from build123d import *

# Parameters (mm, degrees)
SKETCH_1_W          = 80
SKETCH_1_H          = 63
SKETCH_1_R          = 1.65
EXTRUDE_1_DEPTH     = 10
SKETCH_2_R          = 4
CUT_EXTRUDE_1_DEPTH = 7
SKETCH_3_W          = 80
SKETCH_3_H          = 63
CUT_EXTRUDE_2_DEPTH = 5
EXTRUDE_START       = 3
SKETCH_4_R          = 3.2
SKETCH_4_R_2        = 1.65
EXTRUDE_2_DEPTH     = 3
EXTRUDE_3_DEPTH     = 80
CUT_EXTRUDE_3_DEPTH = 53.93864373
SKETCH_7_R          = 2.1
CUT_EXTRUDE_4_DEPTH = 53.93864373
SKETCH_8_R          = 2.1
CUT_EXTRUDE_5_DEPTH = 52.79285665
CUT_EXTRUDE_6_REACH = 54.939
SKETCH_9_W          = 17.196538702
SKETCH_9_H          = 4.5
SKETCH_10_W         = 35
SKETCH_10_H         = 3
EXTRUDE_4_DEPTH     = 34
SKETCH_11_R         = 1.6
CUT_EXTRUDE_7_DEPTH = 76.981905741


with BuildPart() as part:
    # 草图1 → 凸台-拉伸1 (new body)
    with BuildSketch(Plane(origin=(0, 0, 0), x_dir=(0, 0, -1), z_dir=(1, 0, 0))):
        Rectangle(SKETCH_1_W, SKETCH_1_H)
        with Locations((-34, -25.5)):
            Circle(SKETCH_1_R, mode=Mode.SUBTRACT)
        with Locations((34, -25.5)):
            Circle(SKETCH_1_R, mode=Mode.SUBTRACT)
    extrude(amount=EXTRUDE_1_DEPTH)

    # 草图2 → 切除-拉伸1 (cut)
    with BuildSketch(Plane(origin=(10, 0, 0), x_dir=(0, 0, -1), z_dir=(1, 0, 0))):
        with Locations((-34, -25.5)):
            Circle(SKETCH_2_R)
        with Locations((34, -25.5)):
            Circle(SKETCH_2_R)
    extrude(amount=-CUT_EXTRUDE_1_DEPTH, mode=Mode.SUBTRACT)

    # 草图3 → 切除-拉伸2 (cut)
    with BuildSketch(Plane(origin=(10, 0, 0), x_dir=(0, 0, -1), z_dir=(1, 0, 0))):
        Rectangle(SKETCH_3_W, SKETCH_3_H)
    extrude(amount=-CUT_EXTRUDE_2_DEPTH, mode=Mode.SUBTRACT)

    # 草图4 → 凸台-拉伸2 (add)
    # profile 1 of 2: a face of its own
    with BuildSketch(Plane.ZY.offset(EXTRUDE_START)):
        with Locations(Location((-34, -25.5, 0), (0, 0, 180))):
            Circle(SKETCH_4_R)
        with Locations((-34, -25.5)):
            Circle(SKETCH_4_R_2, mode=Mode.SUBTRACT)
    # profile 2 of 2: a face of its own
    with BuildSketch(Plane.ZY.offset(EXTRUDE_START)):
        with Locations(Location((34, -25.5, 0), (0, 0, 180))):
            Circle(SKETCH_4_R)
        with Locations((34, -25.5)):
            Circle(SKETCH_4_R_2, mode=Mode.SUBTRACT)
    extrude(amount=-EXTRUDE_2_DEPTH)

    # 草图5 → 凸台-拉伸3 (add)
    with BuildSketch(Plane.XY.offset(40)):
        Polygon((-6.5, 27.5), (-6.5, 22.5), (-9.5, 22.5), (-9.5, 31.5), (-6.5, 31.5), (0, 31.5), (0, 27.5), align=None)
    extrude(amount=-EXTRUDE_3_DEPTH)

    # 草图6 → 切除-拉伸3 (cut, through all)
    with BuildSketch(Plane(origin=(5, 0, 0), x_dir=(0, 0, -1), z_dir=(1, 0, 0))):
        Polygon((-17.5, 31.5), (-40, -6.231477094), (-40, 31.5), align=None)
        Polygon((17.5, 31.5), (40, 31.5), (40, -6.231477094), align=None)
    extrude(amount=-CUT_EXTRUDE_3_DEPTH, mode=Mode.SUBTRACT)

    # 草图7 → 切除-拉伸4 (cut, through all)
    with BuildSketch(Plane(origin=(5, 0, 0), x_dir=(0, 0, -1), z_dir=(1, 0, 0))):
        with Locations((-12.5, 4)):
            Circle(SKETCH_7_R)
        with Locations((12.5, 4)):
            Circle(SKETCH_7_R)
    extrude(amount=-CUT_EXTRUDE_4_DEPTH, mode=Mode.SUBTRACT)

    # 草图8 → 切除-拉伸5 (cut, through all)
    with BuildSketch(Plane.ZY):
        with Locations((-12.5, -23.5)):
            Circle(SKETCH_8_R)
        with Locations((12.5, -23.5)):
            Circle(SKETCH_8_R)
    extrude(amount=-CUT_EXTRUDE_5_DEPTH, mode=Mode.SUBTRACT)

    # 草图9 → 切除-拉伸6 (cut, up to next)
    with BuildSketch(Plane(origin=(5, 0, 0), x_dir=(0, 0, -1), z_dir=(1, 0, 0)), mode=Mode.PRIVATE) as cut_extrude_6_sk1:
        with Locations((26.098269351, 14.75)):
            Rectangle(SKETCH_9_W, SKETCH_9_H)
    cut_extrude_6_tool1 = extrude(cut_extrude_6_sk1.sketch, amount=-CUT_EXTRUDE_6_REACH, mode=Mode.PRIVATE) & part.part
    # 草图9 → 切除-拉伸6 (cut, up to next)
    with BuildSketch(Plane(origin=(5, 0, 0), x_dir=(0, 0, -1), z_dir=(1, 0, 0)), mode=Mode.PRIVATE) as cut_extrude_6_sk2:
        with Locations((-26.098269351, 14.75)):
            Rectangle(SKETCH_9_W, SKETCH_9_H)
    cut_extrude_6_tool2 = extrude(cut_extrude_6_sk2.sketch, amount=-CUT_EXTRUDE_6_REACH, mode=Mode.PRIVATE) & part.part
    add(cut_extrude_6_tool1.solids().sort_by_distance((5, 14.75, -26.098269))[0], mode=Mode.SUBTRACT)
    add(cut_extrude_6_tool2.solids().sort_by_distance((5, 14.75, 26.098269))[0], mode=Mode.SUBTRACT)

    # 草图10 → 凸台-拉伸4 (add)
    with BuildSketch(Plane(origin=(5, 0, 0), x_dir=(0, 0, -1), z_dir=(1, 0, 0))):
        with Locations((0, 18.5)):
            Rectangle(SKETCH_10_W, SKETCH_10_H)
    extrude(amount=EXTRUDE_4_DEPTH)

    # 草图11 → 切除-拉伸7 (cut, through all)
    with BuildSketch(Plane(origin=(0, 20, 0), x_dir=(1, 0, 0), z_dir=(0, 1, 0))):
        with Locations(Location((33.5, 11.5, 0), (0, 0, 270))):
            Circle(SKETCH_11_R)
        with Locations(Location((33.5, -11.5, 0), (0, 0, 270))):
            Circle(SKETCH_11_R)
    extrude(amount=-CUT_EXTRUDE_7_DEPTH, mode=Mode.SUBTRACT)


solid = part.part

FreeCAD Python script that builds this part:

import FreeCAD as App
import Part
import Sketcher

doc = App.newDocument("Part")
params = doc.addObject("Spreadsheet::Sheet", "Params")
for row, (alias, value) in enumerate([
    ("sketch1_diameter", "3.3 mm"),
    ("sketch1_width", "63 mm"),
    ("sketch1_height", "80 mm"),
    ("pad1_length", "10 mm"),
    ("sketch2_diameter", "8 mm"),
    ("pocket1_length", "7 mm"),
    ("sketch3_width", "63 mm"),
    ("sketch3_height", "80 mm"),
    ("pocket2_length", "5 mm"),
    ("sketch4_diameter", "6.4 mm"),
    ("sketch4_diameter2", "3.3 mm"),
    ("pad2_length", "3 mm"),
    ("sketch5_width", "3 mm"),
    ("sketch5_height", "5 mm"),
    ("sketch5_height2", "4 mm"),
    ("sketch5_width2", "6.5 mm"),
    ("pad3_length", "80 mm"),
    ("sketch6_height", "22.5 mm"),
    ("sketch7_diameter", "4.2 mm"),
    ("sketch8_diameter", "4.2 mm"),
    ("sketch9_width", "4.5 mm"),
    ("sketch10_width", "4.5 mm"),
    ("sketch11_width", "3 mm"),
    ("sketch11_height", "35 mm"),
    ("pad4_length", "34 mm"),
    ("sketch12_diameter", "3.2 mm"),
], start=1):
    params.set(f"A{row}", alias)
    params.set(f"B{row}", "=" + value)
    params.setAlias(f"B{row}", alias)

body = doc.addObject("PartDesign::Body", "Body")

sketch1 = body.newObject("Sketcher::SketchObject", "Sketch")
sketch1.AttachmentSupport = (doc.getObject("YZ_Plane"), [""])
sketch1.MapMode = "FlatFace"
sketch1.addGeometry(Part.LineSegment(App.Vector(31.5, 40, 0), App.Vector(-31.5, 40, 0)), False)
sketch1.addGeometry(Part.LineSegment(App.Vector(-31.5, 40, 0), App.Vector(-31.5, -40, 0)), False)
sketch1.addGeometry(Part.LineSegment(App.Vector(-31.5, -40, 0), App.Vector(31.5, -40, 0)), False)
sketch1.addGeometry(Part.LineSegment(App.Vector(31.5, -40, 0), App.Vector(31.5, 40, 0)), False)
sketch1.addGeometry(Part.Circle(App.Vector(-25.5, 34, 0), App.Vector(0, 0, 1), 1.6), False)
sketch1.addGeometry(Part.Circle(App.Vector(-25.5, -34, 0), App.Vector(0, 0, 1), 1.6), False)
sketch1.addConstraint(Sketcher.Constraint("Coincident", 0, 2, 1, 1))
sketch1.addConstraint(Sketcher.Constraint("Coincident", 1, 2, 2, 1))
sketch1.addConstraint(Sketcher.Constraint("Coincident", 2, 2, 3, 1))
sketch1.addConstraint(Sketcher.Constraint("Coincident", 3, 2, 0, 1))
sketch1.addConstraint(Sketcher.Constraint("Horizontal", 0))
sketch1.addConstraint(Sketcher.Constraint("Vertical", 1))
sketch1.addConstraint(Sketcher.Constraint("Horizontal", 2))
sketch1.addConstraint(Sketcher.Constraint("Vertical", 3))
sketch1.addConstraint(Sketcher.Constraint("Equal", 4, 5))
sketch1.addConstraint(Sketcher.Constraint("Symmetric", 0, 2, 2, 2, -1, 1))
sketch1.addConstraint(Sketcher.Constraint("Symmetric", 4, 3, 5, 3, -1))
sketch1.addConstraint(Sketcher.Constraint("Diameter", 4, 3.3))
sketch1.addConstraint(Sketcher.Constraint("DistanceX", 0, 2, 0, 1, 63.0))
sketch1.addConstraint(Sketcher.Constraint("DistanceY", 1, 2, 1, 1, 80.0))
sketch1.addConstraint(Sketcher.Constraint("DistanceY", -1, 1, 4, 3, 34.0))
sketch1.addConstraint(Sketcher.Constraint("DistanceX", 0, 2, 4, 3, 6.0))
sketch1.setExpression("Constraints[11]", "Params.sketch1_diameter")
sketch1.setExpression("Constraints[12]", "Params.sketch1_width")
sketch1.setExpression("Constraints[13]", "Params.sketch1_height")
pad1 = body.newObject("PartDesign::Pad", "Pad")
pad1.Profile = sketch1
pad1.setExpression("Length", "Params.pad1_length")

sketch2 = body.newObject("Sketcher::SketchObject", "Sketch001")
sketch2.AttachmentSupport = (doc.getObject("YZ_Plane"), [""])
sketch2.MapMode = "FlatFace"
sketch2.AttachmentOffset = App.Placement(App.Vector(0, 0, 10), App.Rotation())
sketch2.addGeometry(Part.Circle(App.Vector(-25.5, 34, 0), App.Vector(0, 0, 1), 4), False)
sketch2.addGeometry(Part.Circle(App.Vector(-25.5, -34, 0), App.Vector(0, 0, 1), 4), False)
sketch2.addConstraint(Sketcher.Constraint("Equal", 0, 1))
sketch2.addConstraint(Sketcher.Constraint("Symmetric", 0, 3, 1, 3, -1))
sketch2.addConstraint(Sketcher.Constraint("Diameter", 0, 8.0))
sketch2.addConstraint(Sketcher.Constraint("DistanceY", -1, 1, 0, 3, 34.0))
sketch2.addConstraint(Sketcher.Constraint("DistanceX", 0, 3, -1, 1, 25.5))
sketch2.setExpression("Constraints[2]", "Params.sketch2_diameter")
pocket1 = body.newObject("PartDesign::Pocket", "Pocket")
pocket1.Profile = sketch2
pocket1.setExpression("Length", "Params.pocket1_length")

sketch3 = body.newObject("Sketcher::SketchObject", "Sketch002")
sketch3.AttachmentSupport = (doc.getObject("YZ_Plane"), [""])
sketch3.MapMode = "FlatFace"
sketch3.AttachmentOffset = App.Placement(App.Vector(0, 0, 10), App.Rotation())
sketch3.addGeometry(Part.LineSegment(App.Vector(32, 40, 0), App.Vector(-32, 40, 0)), False)
sketch3.addGeometry(Part.LineSegment(App.Vector(-32, 40, 0), App.Vector(-32, -40, 0)), False)
sketch3.addGeometry(Part.LineSegment(App.Vector(-32, -40, 0), App.Vector(32, -40, 0)), False)
sketch3.addGeometry(Part.LineSegment(App.Vector(32, -40, 0), App.Vector(32, 40, 0)), False)
sketch3.addConstraint(Sketcher.Constraint("Coincident", 0, 2, 1, 1))
sketch3.addConstraint(Sketcher.Constraint("Coincident", 1, 2, 2, 1))
sketch3.addConstraint(Sketcher.Constraint("Coincident", 2, 2, 3, 1))
sketch3.addConstraint(Sketcher.Constraint("Coincident", 3, 2, 0, 1))
sketch3.addConstraint(Sketcher.Constraint("Horizontal", 0))
sketch3.addConstraint(Sketcher.Constraint("Vertical", 1))
sketch3.addConstraint(Sketcher.Constraint("Horizontal", 2))
sketch3.addConstraint(Sketcher.Constraint("Vertical", 3))
sketch3.addConstraint(Sketcher.Constraint("Symmetric", 0, 2, 2, 2, -1, 1))
sketch3.addConstraint(Sketcher.Constraint("DistanceX", 0, 2, 0, 1, 63.0))
sketch3.addConstraint(Sketcher.Constraint("DistanceY", 1, 2, 1, 1, 80.0))
sketch3.setExpression("Constraints[9]", "Params.sketch3_width")
sketch3.setExpression("Constraints[10]", "Params.sketch3_height")
pocket2 = body.newObject("PartDesign::Pocket", "Pocket001")
pocket2.Profile = sketch3
pocket2.setExpression("Length", "Params.pocket2_length")

sketch4 = body.newObject("Sketcher::SketchObject", "Sketch003")
sketch4.AttachmentSupport = (doc.getObject("YZ_Plane"), [""])
sketch4.MapMode = "FlatFace"
sketch4.AttachmentOffset = App.Placement(App.Vector(0, 0, -3), App.Rotation())
sketch4.addGeometry(Part.Circle(App.Vector(-25.5, -34, 0), App.Vector(0, 0, 1), 3.2), False)
sketch4.addGeometry(Part.Circle(App.Vector(-25.5, -34, 0), App.Vector(0, 0, 1), 1.6), False)
sketch4.addGeometry(Part.Circle(App.Vector(-25.5, 34, 0), App.Vector(0, 0, 1), 3.2), False)
sketch4.addGeometry(Part.Circle(App.Vector(-25.5, 34, 0), App.Vector(0, 0, 1), 1.6), False)
sketch4.addConstraint(Sketcher.Constraint("Coincident", 1, 3, 0, 3))
sketch4.addConstraint(Sketcher.Constraint("Coincident", 3, 3, 2, 3))
sketch4.addConstraint(Sketcher.Constraint("Equal", 0, 2))
sketch4.addConstraint(Sketcher.Constraint("Equal", 1, 3))
sketch4.addConstraint(Sketcher.Constraint("Symmetric", 0, 3, 2, 3, -1))
sketch4.addConstraint(Sketcher.Constraint("Diameter", 0, 6.4))
sketch4.addConstraint(Sketcher.Constraint("Diameter", 1, 3.3))
sketch4.addConstraint(Sketcher.Constraint("DistanceY", 0, 3, -1, 1, 34.0))
sketch4.addConstraint(Sketcher.Constraint("DistanceX", 0, 3, -1, 1, 25.5))
sketch4.setExpression("Constraints[5]", "Params.sketch4_diameter")
sketch4.setExpression("Constraints[6]", "Params.sketch4_diameter2")
pad2 = body.newObject("PartDesign::Pad", "Pad001")
pad2.Profile = sketch4
pad2.setExpression("Length", "Params.pad2_length")

sketch5 = body.newObject("Sketcher::SketchObject", "Sketch004")
sketch5.AttachmentSupport = (doc.getObject("XY_Plane"), [""])
sketch5.MapMode = "FlatFace"
sketch5.AttachmentOffset = App.Placement(App.Vector(0, 0, 40), App.Rotation())
sketch5.addGeometry(Part.LineSegment(App.Vector(-6.5, 22.5, 0), App.Vector(-6.5, 27.5, 0)), False)
sketch5.addGeometry(Part.LineSegment(App.Vector(-6.5, 27.5, 0), App.Vector(0, 27.5, 0)), False)
sketch5.addGeometry(Part.LineSegment(App.Vector(0, 27.5, 0), App.Vector(0, 31.5, 0)), False)
sketch5.addGeometry(Part.LineSegment(App.Vector(0, 31.5, 0), App.Vector(-9.5, 31.5, 0)), False)
sketch5.addGeometry(Part.LineSegment(App.Vector(-9.5, 31.5, 0), App.Vector(-9.5, 22.5, 0)), False)
sketch5.addGeometry(Part.LineSegment(App.Vector(-9.5, 22.5, 0), App.Vector(-6.5, 22.5, 0)), False)
sketch5.addConstraint(Sketcher.Constraint("Coincident", 0, 2, 1, 1))
sketch5.addConstraint(Sketcher.Constraint("Coincident", 1, 2, 2, 1))
sketch5.addConstraint(Sketcher.Constraint("Coincident", 2, 2, 3, 1))
sketch5.addConstraint(Sketcher.Constraint("Coincident", 3, 2, 4, 1))
sketch5.addConstraint(Sketcher.Constraint("Coincident", 4, 2, 5, 1))
sketch5.addConstraint(Sketcher.Constraint("Coincident", 5, 2, 0, 1))
sketch5.addConstraint(Sketcher.Constraint("Vertical", 0))
sketch5.addConstraint(Sketcher.Constraint("Horizontal", 1))
sketch5.addConstraint(Sketcher.Constraint("Vertical", 2))
sketch5.addConstraint(Sketcher.Constraint("Horizontal", 3))
sketch5.addConstraint(Sketcher.Constraint("Vertical", 4))
sketch5.addConstraint(Sketcher.Constraint("Horizontal", 5))
sketch5.addConstraint(Sketcher.Constraint("PointOnObject", 1, 2, -2))
sketch5.addConstraint(Sketcher.Constraint("DistanceX", 5, 1, 5, 2, 3.0))
sketch5.addConstraint(Sketcher.Constraint("DistanceY", 0, 1, 0, 2, 5.0))
sketch5.addConstraint(Sketcher.Constraint("DistanceY", 2, 1, 2, 2, 4.0))
sketch5.addConstraint(Sketcher.Constraint("DistanceX", 1, 1, 1, 2, 6.5))
sketch5.addConstraint(Sketcher.Constraint("DistanceY", -1, 1, 0, 2, 27.5))
sketch5.setExpression("Constraints[13]", "Params.sketch5_width")
sketch5.setExpression("Constraints[14]", "Params.sketch5_height")
sketch5.setExpression("Constraints[15]", "Params.sketch5_height2")
sketch5.setExpression("Constraints[16]", "Params.sketch5_width2")
pad3 = body.newObject("PartDesign::Pad", "Pad002")
pad3.Profile = sketch5
pad3.setExpression("Length", "Params.pad3_length")
pad3.Reversed = True

sketch6 = body.newObject("Sketcher::SketchObject", "Sketch005")
sketch6.AttachmentSupport = (doc.getObject("YZ_Plane"), [""])
sketch6.MapMode = "FlatFace"
sketch6.AttachmentOffset = App.Placement(App.Vector(0, 0, 5), App.Rotation())
sketch6.addGeometry(Part.LineSegment(App.Vector(-6, 40, 0), App.Vector(32, 18, 0)), False)
sketch6.addGeometry(Part.LineSegment(App.Vector(32, 18, 0), App.Vector(32, 40, 0)), False)
sketch6.addGeometry(Part.LineSegment(App.Vector(32, 40, 0), App.Vector(-6, 40, 0)), False)
sketch6.addGeometry(Part.LineSegment(App.Vector(32, -40, 0), App.Vector(32, -18, 0)), False)
sketch6.addGeometry(Part.LineSegment(App.Vector(32, -18, 0), App.Vector(-6, -40, 0)), False)
sketch6.addGeometry(Part.LineSegment(App.Vector(-6, -40, 0), App.Vector(32, -40, 0)), False)
sketch6.addConstraint(Sketcher.Constraint("Coincident", 0, 2, 1, 1))
sketch6.addConstraint(Sketcher.Constraint("Coincident", 1, 2, 2, 1))
sketch6.addConstraint(Sketcher.Constraint("Coincident", 2, 2, 0, 1))
sketch6.addConstraint(Sketcher.Constraint("Coincident", 3, 2, 4, 1))
sketch6.addConstraint(Sketcher.Constraint("Coincident", 4, 2, 5, 1))
sketch6.addConstraint(Sketcher.Constraint("Coincident", 5, 2, 3, 1))
sketch6.addConstraint(Sketcher.Constraint("Vertical", 1))
sketch6.addConstraint(Sketcher.Constraint("Horizontal", 2))
sketch6.addConstraint(Sketcher.Constraint("Vertical", 3))
sketch6.addConstraint(Sketcher.Constraint("Horizontal", 5))
sketch6.addConstraint(Sketcher.Constraint("Symmetric", 0, 2, 3, 2, -1))
sketch6.addConstraint(Sketcher.Constraint("Symmetric", 2, 2, 4, 2, -1))
sketch6.addConstraint(Sketcher.Constraint("DistanceY", 1, 1, 1, 2, 22.5))
sketch6.addConstraint(Sketcher.Constraint("DistanceY", -1, 1, 1, 2, 40.0))
sketch6.addConstraint(Sketcher.Constraint("DistanceX", -1, 1, 0, 2, 31.5))
sketch6.addConstraint(Sketcher.Constraint("Distance", 0, 43.930791))
sketch6.setExpression("Constraints[12]", "Params.sketch6_height")
pocket3 = body.newObject("PartDesign::Pocket", "Pocket002")
pocket3.Profile = sketch6
pocket3.Type = "ThroughAll"

sketch7 = body.newObject("Sketcher::SketchObject", "Sketch006")
sketch7.AttachmentSupport = (doc.getObject("YZ_Plane"), [""])
sketch7.MapMode = "FlatFace"
sketch7.AttachmentOffset = App.Placement(App.Vector(0, 0, 5), App.Rotation())
sketch7.addGeometry(Part.Circle(App.Vector(4, 12.5, 0), App.Vector(0, 0, 1), 2.1), False)
sketch7.addGeometry(Part.Circle(App.Vector(4, -12.5, 0), App.Vector(0, 0, 1), 2.1), False)
sketch7.addConstraint(Sketcher.Constraint("Equal", 0, 1))
sketch7.addConstraint(Sketcher.Constraint("Symmetric", 0, 3, 1, 3, -1))
sketch7.addConstraint(Sketcher.Constraint("Diameter", 0, 4.2))
sketch7.addConstraint(Sketcher.Constraint("DistanceX", -1, 1, 0, 3, 4.0))
sketch7.addConstraint(Sketcher.Constraint("DistanceY", 1, 3, 0, 3, 25.0))
sketch7.setExpression("Constraints[2]", "Params.sketch7_diameter")
pocket4 = body.newObject("PartDesign::Pocket", "Pocket003")
pocket4.Profile = sketch7
pocket4.Type = "ThroughAll"

sketch8 = body.newObject("Sketcher::SketchObject", "Sketch007")
sketch8.AttachmentSupport = (doc.getObject("YZ_Plane"), [""])
sketch8.MapMode = "FlatFace"
sketch8.addGeometry(Part.Circle(App.Vector(-23.5, -12.5, 0), App.Vector(0, 0, 1), 2.1), False)
sketch8.addGeometry(Part.Circle(App.Vector(-23.5, 12.5, 0), App.Vector(0, 0, 1), 2.1), False)
sketch8.addConstraint(Sketcher.Constraint("Equal", 0, 1))
sketch8.addConstraint(Sketcher.Constraint("Symmetric", 0, 3, 1, 3, -1))
sketch8.addConstraint(Sketcher.Constraint("Diameter", 0, 4.2))
sketch8.addConstraint(Sketcher.Constraint("DistanceY", 0, 3, 1, 3, 25.0))
sketch8.addConstraint(Sketcher.Constraint("DistanceX", 0, 3, -1, 1, 23.5))
sketch8.setExpression("Constraints[2]", "Params.sketch8_diameter")
pocket5 = body.newObject("PartDesign::Pocket", "Pocket004")
pocket5.Profile = sketch8
pocket5.Type = "ThroughAll"
pocket5.Reversed = True

sketch9 = body.newObject("Sketcher::SketchObject", "Sketch008")
sketch9.AttachmentSupport = (doc.getObject("YZ_Plane"), [""])
sketch9.MapMode = "FlatFace"
sketch9.AttachmentOffset = App.Placement(App.Vector(0, 0, 5), App.Rotation())
sketch9.addGeometry(Part.LineSegment(App.Vector(17, -17.5, 0), App.Vector(12.5, -17.5, 0)), False)
sketch9.addGeometry(Part.LineSegment(App.Vector(12.5, -17.5, 0), App.Vector(12.5, -34.7, 0)), False)
sketch9.addGeometry(Part.LineSegment(App.Vector(12.5, -34.7, 0), App.Vector(17, -34.7, 0)), False)
sketch9.addGeometry(Part.LineSegment(App.Vector(17, -34.7, 0), App.Vector(17, -17.5, 0)), False)
sketch9.addConstraint(Sketcher.Constraint("Coincident", 0, 2, 1, 1))
sketch9.addConstraint(Sketcher.Constraint("Coincident", 1, 2, 2, 1))
sketch9.addConstraint(Sketcher.Constraint("Coincident", 2, 2, 3, 1))
sketch9.addConstraint(Sketcher.Constraint("Coincident", 3, 2, 0, 1))
sketch9.addConstraint(Sketcher.Constraint("Horizontal", 0))
sketch9.addConstraint(Sketcher.Constraint("Vertical", 1))
sketch9.addConstraint(Sketcher.Constraint("Horizontal", 2))
sketch9.addConstraint(Sketcher.Constraint("Vertical", 3))
sketch9.addConstraint(Sketcher.Constraint("DistanceX", 0, 2, 0, 1, 4.5))
sketch9.addConstraint(Sketcher.Constraint("DistanceX", -1, 1, 2, 2, 17.0))
sketch9.addConstraint(Sketcher.Constraint("DistanceY", 0, 2, -1, 1, 17.5))
sketch9.addConstraint(Sketcher.Constraint("DistanceY", 1, 2, 1, 1, 17.196539))
sketch9.setExpression("Constraints[8]", "Params.sketch9_width")
pocket6 = body.newObject("PartDesign::Pocket", "Pocket005")
pocket6.Profile = sketch9
pocket6.Type = "UpToFirst"

sketch10 = body.newObject("Sketcher::SketchObject", "Sketch009")
sketch10.AttachmentSupport = (doc.getObject("YZ_Plane"), [""])
sketch10.MapMode = "FlatFace"
sketch10.AttachmentOffset = App.Placement(App.Vector(0, 0, 5), App.Rotation())
sketch10.addGeometry(Part.LineSegment(App.Vector(17, 34.7, 0), App.Vector(12.5, 34.7, 0)), False)
sketch10.addGeometry(Part.LineSegment(App.Vector(12.5, 34.7, 0), App.Vector(12.5, 17.5, 0)), False)
sketch10.addGeometry(Part.LineSegment(App.Vector(12.5, 17.5, 0), App.Vector(17, 17.5, 0)), False)
sketch10.addGeometry(Part.LineSegment(App.Vector(17, 17.5, 0), App.Vector(17, 34.7, 0)), False)
sketch10.addConstraint(Sketcher.Constraint("Coincident", 0, 2, 1, 1))
sketch10.addConstraint(Sketcher.Constraint("Coincident", 1, 2, 2, 1))
sketch10.addConstraint(Sketcher.Constraint("Coincident", 2, 2, 3, 1))
sketch10.addConstraint(Sketcher.Constraint("Coincident", 3, 2, 0, 1))
sketch10.addConstraint(Sketcher.Constraint("Horizontal", 0))
sketch10.addConstraint(Sketcher.Constraint("Vertical", 1))
sketch10.addConstraint(Sketcher.Constraint("Horizontal", 2))
sketch10.addConstraint(Sketcher.Constraint("Vertical", 3))
sketch10.addConstraint(Sketcher.Constraint("DistanceX", 0, 2, 0, 1, 4.5))
sketch10.addConstraint(Sketcher.Constraint("DistanceX", -1, 1, 2, 2, 17.0))
sketch10.addConstraint(Sketcher.Constraint("DistanceY", -1, 1, 1, 2, 17.5))
sketch10.addConstraint(Sketcher.Constraint("DistanceY", 1, 2, 1, 1, 17.196539))
sketch10.setExpression("Constraints[8]", "Params.sketch10_width")
pocket7 = body.newObject("PartDesign::Pocket", "Pocket006")
pocket7.Profile = sketch10
pocket7.Type = "UpToFirst"

sketch11 = body.newObject("Sketcher::SketchObject", "Sketch010")
sketch11.AttachmentSupport = (doc.getObject("YZ_Plane"), [""])
sketch11.MapMode = "FlatFace"
sketch11.AttachmentOffset = App.Placement(App.Vector(0, 0, 5), App.Rotation())
sketch11.addGeometry(Part.LineSegment(App.Vector(20, 17.5, 0), App.Vector(17, 17.5, 0)), False)
sketch11.addGeometry(Part.LineSegment(App.Vector(17, 17.5, 0), App.Vector(17, -17.5, 0)), False)
sketch11.addGeometry(Part.LineSegment(App.Vector(17, -17.5, 0), App.Vector(20, -17.5, 0)), False)
sketch11.addGeometry(Part.LineSegment(App.Vector(20, -17.5, 0), App.Vector(20, 17.5, 0)), False)
sketch11.addConstraint(Sketcher.Constraint("Coincident", 0, 2, 1, 1))
sketch11.addConstraint(Sketcher.Constraint("Coincident", 1, 2, 2, 1))
sketch11.addConstraint(Sketcher.Constraint("Coincident", 2, 2, 3, 1))
sketch11.addConstraint(Sketcher.Constraint("Coincident", 3, 2, 0, 1))
sketch11.addConstraint(Sketcher.Constraint("Horizontal", 0))
sketch11.addConstraint(Sketcher.Constraint("Vertical", 1))
sketch11.addConstraint(Sketcher.Constraint("Horizontal", 2))
sketch11.addConstraint(Sketcher.Constraint("Vertical", 3))
sketch11.addConstraint(Sketcher.Constraint("DistanceX", 0, 2, 0, 1, 3.0))
sketch11.addConstraint(Sketcher.Constraint("DistanceY", 1, 2, 1, 1, 35.0))
sketch11.addConstraint(Sketcher.Constraint("DistanceX", -1, 1, 0, 2, 17.0))
sketch11.addConstraint(Sketcher.Constraint("DistanceY", -1, 1, 0, 2, 17.5))
sketch11.setExpression("Constraints[8]", "Params.sketch11_width")
sketch11.setExpression("Constraints[9]", "Params.sketch11_height")
pad4 = body.newObject("PartDesign::Pad", "Pad003")
pad4.Profile = sketch11
pad4.setExpression("Length", "Params.pad4_length")

sketch12 = body.newObject("Sketcher::SketchObject", "Sketch011")
sketch12.AttachmentSupport = (doc.getObject("XZ_Plane"), [""])
sketch12.MapMode = "FlatFace"
sketch12.AttachmentOffset = App.Placement(App.Vector(0, 0, -20), App.Rotation())
sketch12.addGeometry(Part.Circle(App.Vector(33.5, -11.5, 0), App.Vector(0, 0, 1), 1.6), False)
sketch12.addGeometry(Part.Circle(App.Vector(33.5, 11.5, 0), App.Vector(0, 0, 1), 1.6), False)
sketch12.addConstraint(Sketcher.Constraint("Equal", 0, 1))
sketch12.addConstraint(Sketcher.Constraint("Symmetric", 0, 3, 1, 3, -1))
sketch12.addConstraint(Sketcher.Constraint("Diameter", 0, 3.2))
sketch12.addConstraint(Sketcher.Constraint("DistanceY", 0, 3, 1, 3, 23.0))
sketch12.addConstraint(Sketcher.Constraint("DistanceX", -1, 1, 0, 3, 33.5))
sketch12.setExpression("Constraints[2]", "Params.sketch12_diameter")
pocket8 = body.newObject("PartDesign::Pocket", "Pocket007")
pocket8.Profile = sketch12
pocket8.Type = "ThroughAll"
pocket8.Reversed = True

doc.recompute()
